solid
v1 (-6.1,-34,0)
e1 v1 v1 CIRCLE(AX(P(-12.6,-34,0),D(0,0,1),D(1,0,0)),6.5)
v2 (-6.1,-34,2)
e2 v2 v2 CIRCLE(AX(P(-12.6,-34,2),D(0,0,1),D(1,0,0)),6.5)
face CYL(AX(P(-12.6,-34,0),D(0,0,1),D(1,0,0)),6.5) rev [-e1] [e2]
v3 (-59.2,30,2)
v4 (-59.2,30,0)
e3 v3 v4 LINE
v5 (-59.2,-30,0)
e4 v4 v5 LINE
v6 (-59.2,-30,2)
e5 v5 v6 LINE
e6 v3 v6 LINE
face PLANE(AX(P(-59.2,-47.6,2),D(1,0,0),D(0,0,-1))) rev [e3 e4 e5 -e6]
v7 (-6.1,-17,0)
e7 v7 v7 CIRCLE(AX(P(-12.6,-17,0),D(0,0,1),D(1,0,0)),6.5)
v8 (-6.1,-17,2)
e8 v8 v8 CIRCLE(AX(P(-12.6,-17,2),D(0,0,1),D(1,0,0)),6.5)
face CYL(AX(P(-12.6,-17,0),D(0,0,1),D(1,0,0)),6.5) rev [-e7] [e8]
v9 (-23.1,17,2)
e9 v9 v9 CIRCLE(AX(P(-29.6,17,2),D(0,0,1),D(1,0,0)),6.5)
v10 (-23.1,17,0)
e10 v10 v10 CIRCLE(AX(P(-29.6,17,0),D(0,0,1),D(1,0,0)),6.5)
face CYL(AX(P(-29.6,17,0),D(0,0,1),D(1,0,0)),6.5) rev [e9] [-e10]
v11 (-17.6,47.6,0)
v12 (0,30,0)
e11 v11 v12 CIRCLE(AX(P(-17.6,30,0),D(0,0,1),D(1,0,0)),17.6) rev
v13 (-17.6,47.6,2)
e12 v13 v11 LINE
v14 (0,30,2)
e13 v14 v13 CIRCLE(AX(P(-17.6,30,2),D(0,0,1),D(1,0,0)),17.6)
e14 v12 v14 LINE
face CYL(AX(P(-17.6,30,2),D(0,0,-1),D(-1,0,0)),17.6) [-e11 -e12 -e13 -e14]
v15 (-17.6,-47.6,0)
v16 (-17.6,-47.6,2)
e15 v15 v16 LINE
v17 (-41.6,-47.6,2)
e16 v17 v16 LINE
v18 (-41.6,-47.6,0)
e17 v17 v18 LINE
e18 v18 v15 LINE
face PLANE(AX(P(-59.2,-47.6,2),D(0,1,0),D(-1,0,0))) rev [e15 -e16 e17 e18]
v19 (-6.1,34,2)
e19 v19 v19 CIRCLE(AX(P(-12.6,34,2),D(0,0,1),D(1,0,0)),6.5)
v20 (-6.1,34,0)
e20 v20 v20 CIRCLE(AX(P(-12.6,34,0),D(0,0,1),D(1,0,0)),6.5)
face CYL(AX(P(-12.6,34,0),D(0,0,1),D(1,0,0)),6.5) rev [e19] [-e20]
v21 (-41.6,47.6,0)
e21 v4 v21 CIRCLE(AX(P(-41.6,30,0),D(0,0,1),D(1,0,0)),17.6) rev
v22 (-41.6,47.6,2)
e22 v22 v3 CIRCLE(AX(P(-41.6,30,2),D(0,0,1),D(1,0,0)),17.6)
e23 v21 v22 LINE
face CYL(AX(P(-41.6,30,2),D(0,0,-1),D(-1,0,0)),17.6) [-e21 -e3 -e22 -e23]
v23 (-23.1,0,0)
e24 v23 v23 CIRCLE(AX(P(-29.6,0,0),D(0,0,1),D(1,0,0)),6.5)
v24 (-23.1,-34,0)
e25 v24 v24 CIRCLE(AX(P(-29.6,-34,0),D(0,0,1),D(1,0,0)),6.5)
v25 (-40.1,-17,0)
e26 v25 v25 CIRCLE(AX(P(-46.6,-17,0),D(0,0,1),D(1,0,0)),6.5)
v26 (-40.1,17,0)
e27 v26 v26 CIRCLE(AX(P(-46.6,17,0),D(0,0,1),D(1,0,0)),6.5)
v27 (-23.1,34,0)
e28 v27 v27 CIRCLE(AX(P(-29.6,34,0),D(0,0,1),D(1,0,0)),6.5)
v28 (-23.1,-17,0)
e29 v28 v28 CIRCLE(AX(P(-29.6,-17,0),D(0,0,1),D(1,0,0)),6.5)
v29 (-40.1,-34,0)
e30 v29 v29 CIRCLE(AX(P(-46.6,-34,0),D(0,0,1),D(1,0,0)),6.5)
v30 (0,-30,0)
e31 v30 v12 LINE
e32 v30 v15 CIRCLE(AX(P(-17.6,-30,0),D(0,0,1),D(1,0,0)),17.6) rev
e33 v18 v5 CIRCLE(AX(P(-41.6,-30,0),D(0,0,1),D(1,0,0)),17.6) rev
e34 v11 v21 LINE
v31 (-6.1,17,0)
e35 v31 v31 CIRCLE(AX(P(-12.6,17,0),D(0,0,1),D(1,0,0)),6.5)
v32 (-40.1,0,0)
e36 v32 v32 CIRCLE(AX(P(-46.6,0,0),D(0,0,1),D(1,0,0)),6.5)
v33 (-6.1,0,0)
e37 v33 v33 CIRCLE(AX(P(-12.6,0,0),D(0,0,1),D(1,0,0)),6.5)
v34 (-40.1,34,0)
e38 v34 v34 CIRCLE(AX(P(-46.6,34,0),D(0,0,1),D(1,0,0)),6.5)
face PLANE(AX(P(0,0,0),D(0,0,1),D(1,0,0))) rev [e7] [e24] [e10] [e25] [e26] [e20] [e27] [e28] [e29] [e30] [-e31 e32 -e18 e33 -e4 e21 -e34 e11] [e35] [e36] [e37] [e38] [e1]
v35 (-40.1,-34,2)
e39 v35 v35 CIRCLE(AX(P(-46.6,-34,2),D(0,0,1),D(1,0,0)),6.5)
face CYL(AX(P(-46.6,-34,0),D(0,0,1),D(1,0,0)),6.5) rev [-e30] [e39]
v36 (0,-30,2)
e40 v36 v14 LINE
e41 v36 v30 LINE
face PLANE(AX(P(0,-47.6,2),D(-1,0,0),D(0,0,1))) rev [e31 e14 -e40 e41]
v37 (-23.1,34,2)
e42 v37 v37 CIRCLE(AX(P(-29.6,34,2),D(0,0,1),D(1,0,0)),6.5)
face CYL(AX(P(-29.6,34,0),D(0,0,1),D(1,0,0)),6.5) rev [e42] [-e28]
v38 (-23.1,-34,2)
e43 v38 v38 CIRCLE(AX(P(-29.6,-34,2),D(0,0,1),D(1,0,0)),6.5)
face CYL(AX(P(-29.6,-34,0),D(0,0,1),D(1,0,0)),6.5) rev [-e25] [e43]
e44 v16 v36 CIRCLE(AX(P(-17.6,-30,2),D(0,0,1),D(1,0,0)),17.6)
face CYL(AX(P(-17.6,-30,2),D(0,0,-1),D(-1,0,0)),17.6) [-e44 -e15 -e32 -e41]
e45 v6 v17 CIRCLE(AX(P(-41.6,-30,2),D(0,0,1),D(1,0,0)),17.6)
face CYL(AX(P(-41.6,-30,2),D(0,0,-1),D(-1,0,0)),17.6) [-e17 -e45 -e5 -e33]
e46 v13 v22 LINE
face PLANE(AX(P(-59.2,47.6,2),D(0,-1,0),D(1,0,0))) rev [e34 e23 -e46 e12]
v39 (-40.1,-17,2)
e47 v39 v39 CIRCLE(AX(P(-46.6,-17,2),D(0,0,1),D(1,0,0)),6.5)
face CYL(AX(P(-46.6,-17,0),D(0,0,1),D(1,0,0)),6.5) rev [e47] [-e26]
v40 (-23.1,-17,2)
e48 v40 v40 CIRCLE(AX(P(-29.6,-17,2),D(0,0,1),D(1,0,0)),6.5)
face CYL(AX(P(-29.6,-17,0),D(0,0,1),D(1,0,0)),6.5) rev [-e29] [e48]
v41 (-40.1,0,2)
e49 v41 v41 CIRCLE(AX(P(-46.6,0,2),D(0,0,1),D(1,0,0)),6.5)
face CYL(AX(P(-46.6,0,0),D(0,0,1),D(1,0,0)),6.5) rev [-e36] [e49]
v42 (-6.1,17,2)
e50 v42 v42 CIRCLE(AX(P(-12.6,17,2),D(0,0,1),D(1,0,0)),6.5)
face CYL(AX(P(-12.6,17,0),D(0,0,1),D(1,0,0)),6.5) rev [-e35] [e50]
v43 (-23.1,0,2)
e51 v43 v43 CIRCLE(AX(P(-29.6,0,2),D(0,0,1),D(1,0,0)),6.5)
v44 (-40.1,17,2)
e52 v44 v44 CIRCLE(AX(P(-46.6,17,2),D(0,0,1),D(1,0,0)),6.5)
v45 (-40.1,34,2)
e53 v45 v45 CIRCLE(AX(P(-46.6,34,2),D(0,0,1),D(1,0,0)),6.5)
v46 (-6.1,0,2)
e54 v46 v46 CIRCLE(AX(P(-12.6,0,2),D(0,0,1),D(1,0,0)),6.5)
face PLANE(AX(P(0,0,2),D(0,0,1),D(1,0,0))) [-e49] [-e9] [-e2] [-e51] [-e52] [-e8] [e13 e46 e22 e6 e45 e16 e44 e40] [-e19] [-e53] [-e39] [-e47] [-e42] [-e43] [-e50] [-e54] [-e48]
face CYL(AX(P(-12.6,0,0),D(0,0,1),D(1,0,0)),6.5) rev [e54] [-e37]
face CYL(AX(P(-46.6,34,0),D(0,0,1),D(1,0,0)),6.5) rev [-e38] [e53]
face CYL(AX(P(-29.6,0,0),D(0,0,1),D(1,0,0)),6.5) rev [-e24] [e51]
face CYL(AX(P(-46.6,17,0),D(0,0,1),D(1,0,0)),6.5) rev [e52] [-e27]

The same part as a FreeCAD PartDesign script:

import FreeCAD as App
import Part
import Sketcher

V = App.Vector


def edges_at(feature, points):
    """Names of the edges that pass closest to the given points."""
    edges = feature.Shape.Edges
    near = lambda p: min(range(len(edges)), key=lambda i: edges[i].distToShape(Part.Vertex(*p))[0])
    return sorted({f"Edge{near(p) + 1}" for p in points})


def add_polygon(sketch, points):
    """Adds a closed chain of lines whose ends are joined by coincident constraints."""
    first, n = sketch.GeometryCount, len(points)
    for a, b in zip(points, points[1:] + points[:1]):
        sketch.addGeometry(Part.LineSegment(App.Vector(*a, 0), App.Vector(*b, 0)), False)
    for i in range(n):
        sketch.addConstraint(Sketcher.Constraint("Coincident", first + i, 2, first + (i + 1) % n, 1))

doc = App.newDocument("Part")
body = doc.addObject("PartDesign::Body", "Body")

sketch1 = doc.addObject("Sketcher::SketchObject", "Sketch")
body.addObject(sketch1)
sketch1.AttachmentSupport = (doc.XY_Plane, [""])
sketch1.MapMode = "FlatFace"
add_polygon(sketch1, [(-59.2, -47.6), (0, -47.6), (0, 47.6), (-59.2, 47.6)])
sketch1.addConstraint([
    Sketcher.Constraint("Horizontal", 0),
    Sketcher.Constraint("Vertical", 1),
    Sketcher.Constraint("Horizontal", 2),
    Sketcher.Constraint("Vertical", 3),
    Sketcher.Constraint("Symmetric", 0, 2, 1, 2, -1, 1),
    Sketcher.Constraint("DistanceX", 0, 1, 0, 2, 59.2),
    Sketcher.Constraint("DistanceY", 1, 1, 1, 2, 95.2),
])
pad1 = doc.addObject("PartDesign::Pad", "Pad")
body.addObject(pad1)
pad1.Profile = sketch1
pad1.Length = 2

sketch2 = doc.addObject("Sketcher::SketchObject", "Sketch001")
body.addObject(sketch2)
sketch2.AttachmentSupport = (doc.XY_Plane, [""])
sketch2.MapMode = "FlatFace"
sketch2.AttachmentOffset = App.Placement(V(0, 0, 2), App.Rotation())
sketch2.addGeometry([
    Part.Circle(V(-29.6, 0, 0), V(0, 0, 1), 6.5),
    Part.Circle(V(-46.6, 0, 0), V(0, 0, 1), 6.5),
    Part.Circle(V(-12.6, 0, 0), V(0, 0, 1), 6.5),
    Part.Circle(V(-12.6, -17, 0), V(0, 0, 1), 6.5),
    Part.Circle(V(-46.6, -17, 0), V(0, 0, 1), 6.5),
    Part.Circle(V(-29.6, -17, 0), V(0, 0, 1), 6.5),
    Part.Circle(V(-12.6, -34, 0), V(0, 0, 1), 6.5),
    Part.Circle(V(-46.6, -34, 0), V(0, 0, 1), 6.5),
    Part.Circle(V(-29.6, -34, 0), V(0, 0, 1), 6.5),
    Part.Circle(V(-46.6, 17, 0), V(0, 0, 1), 6.5),
    Part.Circle(V(-29.6, 17, 0), V(0, 0, 1), 6.5),
    Part.Circle(V(-12.6, 17, 0), V(0, 0, 1), 6.5),
    Part.Circle(V(-46.6, 34, 0), V(0, 0, 1), 6.5),
    Part.Circle(V(-29.6, 34, 0), V(0, 0, 1), 6.5),
    Part.Circle(V(-12.6, 34, 0), V(0, 0, 1), 6.5),
], False)
sketch2.addConstraint([
    Sketcher.Constraint("Equal", 0, 1),
    Sketcher.Constraint("Equal", 1, 2),
    Sketcher.Constraint("Equal", 2, 3),
    Sketcher.Constraint("Equal", 3, 4),
    Sketcher.Constraint("Equal", 4, 5),
    Sketcher.Constraint("Equal", 5, 6),
    Sketcher.Constraint("Equal", 6, 7),
    Sketcher.Constraint("Equal", 7, 8),
    Sketcher.Constraint("Equal", 8, 9),
    Sketcher.Constraint("Equal", 9, 10),
    Sketcher.Constraint("Equal", 10, 11),
    Sketcher.Constraint("Equal", 11, 12),
    Sketcher.Constraint("Equal", 12, 13),
    Sketcher.Constraint("Equal", 13, 14),
    Sketcher.Constraint("Symmetric", 4, 3, 9, 3, -1),
    Sketcher.Constraint("Symmetric", 5, 3, 10, 3, -1),
    Sketcher.Constraint("Symmetric", 3, 3, 11, 3, -1),
    Sketcher.Constraint("Symmetric", 7, 3, 12, 3, -1),
    Sketcher.Constraint("Symmetric", 8, 3, 13, 3, -1),
    Sketcher.Constraint("Symmetric", 6, 3, 14, 3, -1),
    Sketcher.Constraint("PointOnObject", 0, 3, -1),
    Sketcher.Constraint("PointOnObject", 1, 3, -1),
    Sketcher.Constraint("PointOnObject", 2, 3, -1),
    Sketcher.Constraint("Horizontal", 3, 3, 4, 3),
    Sketcher.Constraint("Horizontal", 4, 3, 5, 3),
    Sketcher.Constraint("Horizontal", 6, 3, 7, 3),
    Sketcher.Constraint("Horizontal", 7, 3, 8, 3),
    Sketcher.Constraint("Vertical", 2, 3, 3, 3),
    Sketcher.Constraint("Vertical", 1, 3, 4, 3),
    Sketcher.Constraint("Vertical", 0, 3, 5, 3),
    Sketcher.Constraint("Vertical", 3, 3, 6, 3),
    Sketcher.Constraint("Vertical", 4, 3, 7, 3),
    Sketcher.Constraint("Vertical", 5, 3, 8, 3),
    Sketcher.Constraint("Diameter", 0, 13.0),
    Sketcher.Constraint("DistanceY", 3, 3, -1, 1, 17.0),
    Sketcher.Constraint("DistanceY", 6, 3, -1, 1, 34.0),
    Sketcher.Constraint("DistanceX", 1, 3, 0, 3, 17.0),
    Sketcher.Constraint("DistanceX", 0, 3, 2, 3, 17.0),
    Sketcher.Constraint("DistanceX", 0, 3, -1, 1, 29.6),
])
pocket1 = doc.addObject("PartDesign::Pocket", "Pocket")
body.addObject(pocket1)
pocket1.Profile = sketch2
pocket1.Type = "ThroughAll"
pocket1.Midplane = True
doc.recompute()

fillet = doc.addObject("PartDesign::Fillet", "Fillet")
body.addObject(fillet)
fillet.Base = (pocket1, edges_at(pocket1, [
    (-59.2, -47.6, 1),
    (-59.2, 47.6, 1),
    (0, 47.6, 1),
    (0, -47.6, 1),
]))
fillet.Radius = 17.6

doc.recompute()
